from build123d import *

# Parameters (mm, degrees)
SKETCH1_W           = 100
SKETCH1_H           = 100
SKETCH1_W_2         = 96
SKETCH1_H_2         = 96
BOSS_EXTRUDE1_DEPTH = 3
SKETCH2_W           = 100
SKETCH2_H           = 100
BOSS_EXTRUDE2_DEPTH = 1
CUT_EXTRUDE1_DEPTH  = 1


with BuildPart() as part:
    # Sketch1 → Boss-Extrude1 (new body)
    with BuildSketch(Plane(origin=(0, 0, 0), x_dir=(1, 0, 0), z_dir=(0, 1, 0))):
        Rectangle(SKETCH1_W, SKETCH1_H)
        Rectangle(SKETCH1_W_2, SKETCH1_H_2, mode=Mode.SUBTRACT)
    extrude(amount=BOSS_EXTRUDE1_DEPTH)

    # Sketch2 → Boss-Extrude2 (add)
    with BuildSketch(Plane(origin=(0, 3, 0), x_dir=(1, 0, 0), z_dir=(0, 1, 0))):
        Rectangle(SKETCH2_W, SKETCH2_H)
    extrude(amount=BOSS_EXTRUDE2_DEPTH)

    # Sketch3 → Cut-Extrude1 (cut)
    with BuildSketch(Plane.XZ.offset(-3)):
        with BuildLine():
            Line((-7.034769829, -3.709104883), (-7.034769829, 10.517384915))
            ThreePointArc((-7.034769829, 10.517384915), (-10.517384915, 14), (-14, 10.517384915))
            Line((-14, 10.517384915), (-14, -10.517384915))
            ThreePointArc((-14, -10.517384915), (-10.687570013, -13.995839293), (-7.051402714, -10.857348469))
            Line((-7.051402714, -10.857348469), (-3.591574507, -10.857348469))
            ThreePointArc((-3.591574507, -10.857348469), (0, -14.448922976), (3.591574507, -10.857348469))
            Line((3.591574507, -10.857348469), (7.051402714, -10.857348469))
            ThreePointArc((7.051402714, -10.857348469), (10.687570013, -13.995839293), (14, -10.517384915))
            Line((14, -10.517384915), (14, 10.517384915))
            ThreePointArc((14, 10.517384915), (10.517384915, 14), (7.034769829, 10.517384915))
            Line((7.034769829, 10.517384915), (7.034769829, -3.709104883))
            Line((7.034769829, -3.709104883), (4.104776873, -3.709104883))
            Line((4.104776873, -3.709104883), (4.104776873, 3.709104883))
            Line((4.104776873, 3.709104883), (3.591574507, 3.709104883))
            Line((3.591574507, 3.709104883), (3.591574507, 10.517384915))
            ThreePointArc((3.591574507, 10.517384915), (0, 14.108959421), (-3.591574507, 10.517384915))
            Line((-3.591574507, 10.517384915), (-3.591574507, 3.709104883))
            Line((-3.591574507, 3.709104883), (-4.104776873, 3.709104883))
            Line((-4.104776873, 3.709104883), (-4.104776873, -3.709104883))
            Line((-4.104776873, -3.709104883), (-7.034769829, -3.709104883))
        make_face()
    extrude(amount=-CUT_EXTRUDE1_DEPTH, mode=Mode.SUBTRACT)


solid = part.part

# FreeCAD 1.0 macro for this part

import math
import FreeCAD as App
import Part
import Sketcher
Q = App.Units.Quantity


def add_polygon(sketch, points):
    """Adds a closed chain of lines whose ends are joined by coincident constraints."""
    first, n = sketch.GeometryCount, len(points)
    for a, b in zip(points, points[1:] + points[:1]):
        sketch.addGeometry(Part.LineSegment(App.Vector(*a, 0), App.Vector(*b, 0)), False)
    for i in range(n):
        sketch.addConstraint(Sketcher.Constraint("Coincident", first + i, 2, first + (i + 1) % n, 1))

doc = App.newDocument("Part")
body = doc.addObject("PartDesign::Body", "Body")

sketch1 = body.newObject("Sketcher::SketchObject", "Sketch")
sketch1.AttachmentSupport = (doc.getObject("XZ_Plane"), [""])
sketch1.MapMode = "FlatFace"
add_polygon(sketch1, [(-50, -50), (-50, 50), (50, 50), (50, -50)])
add_polygon(sketch1, [(48, 48), (-48, 48), (-48, -48), (48, -48)])
sketch1.addConstraint([
    Sketcher.Constraint("Vertical", 0),
    Sketcher.Constraint("Horizontal", 1),
    Sketcher.Constraint("Vertical", 2),
    Sketcher.Constraint("Horizontal", 3),
    Sketcher.Constraint("Horizontal", 4),
    Sketcher.Constraint("Vertical", 5),
    Sketcher.Constraint("Horizontal", 6),
    Sketcher.Constraint("Vertical", 7),
    Sketcher.Constraint("Symmetric", 0, 2, 2, 2, -1, 1),
    Sketcher.Constraint("Symmetric", 4, 2, 6, 2, -1, 1),
    Sketcher.Constraint("Equal", 3, 0),
    Sketcher.Constraint("Equal", 6, 5),
    Sketcher.Constraint("DistanceX", 1, 1, 1, 2, Q("100 mm")),
    Sketcher.Constraint("DistanceX", 4, 2, 4, 1, Q("96 mm")),
])
pad1 = body.newObject("PartDesign::Pad", "Pad")
pad1.Profile = sketch1
pad1.Length = 3
pad1.Reversed = True

sketch2 = body.newObject("Sketcher::SketchObject", "Sketch001")
sketch2.AttachmentSupport = (doc.getObject("XZ_Plane"), [""])
sketch2.MapMode = "FlatFace"
sketch2.AttachmentOffset = App.Placement(App.Vector(0, 0, -3), App.Rotation())
add_polygon(sketch2, [(-50, -50), (-50, 50), (50, 50), (50, -50)])
sketch2.addConstraint([
    Sketcher.Constraint("Vertical", 0),
    Sketcher.Constraint("Horizontal", 1),
    Sketcher.Constraint("Vertical", 2),
    Sketcher.Constraint("Horizontal", 3),
    Sketcher.Constraint("Symmetric", 0, 2, 2, 2, -1, 1),
    Sketcher.Constraint("Equal", 3, 0),
    Sketcher.Constraint("DistanceX", 1, 1, 1, 2, Q("100 mm")),
])
pad2 = body.newObject("PartDesign::Pad", "Pad001")
pad2.Profile = sketch2
pad2.Length = 1
pad2.Reversed = True

sketch3 = body.newObject("Sketcher::SketchObject", "Sketch002")
sketch3.AttachmentSupport = (doc.getObject("XZ_Plane"), [""])
sketch3.MapMode = "FlatFace"
sketch3.AttachmentOffset = App.Placement(App.Vector(0, 0, -3), App.Rotation())
sketch3.addGeometry([
    Part.LineSegment(App.Vector(-7.03477, -3.709105, 0), App.Vector(-7.03477, 10.517385, 0)),
    Part.ArcOfCircle(Part.Circle(App.Vector(-10.517385, 10.517385, 0), App.Vector(0, 0, 1), 3.482615), math.radians(0), math.radians(180)),
    Part.LineSegment(App.Vector(-14, 10.517385, 0), App.Vector(-14, -10.517385, 0)),
    Part.ArcOfCircle(Part.Circle(App.Vector(-10.517385, -10.517385, 0), App.Vector(0, 0, 1), 3.482615), math.radians(-180), math.radians(-5.601982)),
    Part.LineSegment(App.Vector(-7.051403, -10.857348, 0), App.Vector(-3.591575, -10.857348, 0)),
    Part.ArcOfCircle(Part.Circle(App.Vector(0, -10.857348, 0), App.Vector(0, 0, 1), 3.591575), math.radians(180), math.radians(360)),
    Part.LineSegment(App.Vector(3.591575, -10.857348, 0), App.Vector(7.051403, -10.857348, 0)),
    Part.ArcOfCircle(Part.Circle(App.Vector(10.517385, -10.517385, 0), App.Vector(0, 0, 1), 3.482615), math.radians(-174.398018), math.radians(0)),
    Part.LineSegment(App.Vector(14, -10.517385, 0), App.Vector(14, 10.517385, 0)),
    Part.ArcOfCircle(Part.Circle(App.Vector(10.517385, 10.517385, 0), App.Vector(0, 0, 1), 3.482615), math.radians(0), math.radians(180)),
    Part.LineSegment(App.Vector(7.03477, 10.517385, 0), App.Vector(7.03477, -3.709105, 0)),
    Part.LineSegment(App.Vector(7.03477, -3.709105, 0), App.Vector(4.104777, -3.709105, 0)),
    Part.LineSegment(App.Vector(4.104777, -3.709105, 0), App.Vector(4.104777, 3.709105, 0)),
    Part.LineSegment(App.Vector(4.104777, 3.709105, 0), App.Vector(3.591575, 3.709105, 0)),
    Part.LineSegment(App.Vector(3.591575, 3.709105, 0), App.Vector(3.591575, 10.517385, 0)),
    Part.ArcOfCircle(Part.Circle(App.Vector(0, 10.517385, 0), App.Vector(0, 0, 1), 3.591575), math.radians(0), math.radians(180)),
    Part.LineSegment(App.Vector(-3.591575, 10.517385, 0), App.Vector(-3.591575, 3.709105, 0)),
    Part.LineSegment(App.Vector(-3.591575, 3.709105, 0), App.Vector(-4.104777, 3.709105, 0)),
    Part.LineSegment(App.Vector(-4.104777, 3.709105, 0), App.Vector(-4.104777, -3.709105, 0)),
    Part.LineSegment(App.Vector(-4.104777, -3.709105, 0), App.Vector(-7.03477, -3.709105, 0)),
], False)
sketch3.addConstraint([
    Sketcher.Constraint("Tangent", 0, 2, 1, 1),
    Sketcher.Constraint("Tangent", 1, 2, 2, 1),
    Sketcher.Constraint("Tangent", 2, 2, 3, 1),
    Sketcher.Constraint("Coincident", 3, 2, 4, 1),
    Sketcher.Constraint("Coincident", 4, 2, 5, 1),
    Sketcher.Constraint("Coincident", 5, 2, 6, 1),
    Sketcher.Constraint("Coincident", 6, 2, 7, 1),
    Sketcher.Constraint("Tangent", 7, 2, 8, 1),
    Sketcher.Constraint("Tangent", 8, 2, 9, 1),
    Sketcher.Constraint("Tangent", 9, 2, 10, 1),
    Sketcher.Constraint("Coincident", 10, 2, 11, 1),
    Sketcher.Constraint("Coincident", 11, 2, 12, 1),
    Sketcher.Constraint("Coincident", 12, 2, 13, 1),
    Sketcher.Constraint("Coincident", 13, 2, 14, 1),
    Sketcher.Constraint("Tangent", 14, 2, 15, 1),
    Sketcher.Constraint("Tangent", 15, 2, 16, 1),
    Sketcher.Constraint("Coincident", 16, 2, 17, 1),
    Sketcher.Constraint("Coincident", 17, 2, 18, 1),
    Sketcher.Constraint("Coincident", 18, 2, 19, 1),
    Sketcher.Constraint("Coincident", 19, 2, 0, 1),
    Sketcher.Constraint("Vertical", 0),
    Sketcher.Constraint("Vertical", 2),
    Sketcher.Constraint("Horizontal", 4),
    Sketcher.Constraint("Horizontal", 6),
    Sketcher.Constraint("Vertical", 8),
    Sketcher.Constraint("Vertical", 10),
    Sketcher.Constraint("Horizontal", 11),
    Sketcher.Constraint("Vertical", 12),
    Sketcher.Constraint("Horizontal", 13),
    Sketcher.Constraint("Vertical", 14),
    Sketcher.Constraint("Vertical", 16),
    Sketcher.Constraint("Horizontal", 17),
    Sketcher.Constraint("Vertical", 18),
    Sketcher.Constraint("Horizontal", 19),
    Sketcher.Constraint("Equal", 1, 3),
    Sketcher.Constraint("Equal", 3, 7),
    Sketcher.Constraint("Equal", 7, 9),
    Sketcher.Constraint("Equal", 5, 15),
    Sketcher.Constraint("Symmetric", 1, 3, 7, 3, -1, 1),
    Sketcher.Constraint("Symmetric", 11, 2, 17, 2, -1, 1),
    Sketcher.Constraint("Symmetric", 4, 2, 5, 2, -2),
    Sketcher.Constraint("Symmetric", 13, 2, 16, 2, -2),
    Sketcher.Constraint("Horizontal", 3, 3, 7, 3),
    Sketcher.Constraint("Horizontal", 1, 3, 9, 3),
    Sketcher.Constraint("Horizontal", 9, 3, 15, 3),
    Sketcher.Constraint("Horizontal", 5, 3, 3, 2),
    Sketcher.Constraint("Horizontal", 11, 2, 18, 2),
    Sketcher.Constraint("DistanceX", 1, 2, -1, 1, Q("14 mm")),
    Sketcher.Constraint("Radius", 1, Q("3.482615 mm")),
    Sketcher.Constraint("Radius", 5, Q("3.591575 mm")),
    Sketcher.Constraint("DistanceX", 4, 1, 4, 2, Q("3.459828 mm")),
    Sketcher.Constraint("DistanceY", 0, 1, 0, 2, Q("14.22649 mm")),
    Sketcher.Constraint("DistanceY", 2, 2, 2, 1, Q("21.03477 mm")),
    Sketcher.Constraint("DistanceX", 11, 2, 11, 1, Q("2.929993 mm")),
])
pocket1 = body.newObject("PartDesign::Pocket", "Pocket")
pocket1.Profile = sketch3
pocket1.Length = 1

doc.recompute()
